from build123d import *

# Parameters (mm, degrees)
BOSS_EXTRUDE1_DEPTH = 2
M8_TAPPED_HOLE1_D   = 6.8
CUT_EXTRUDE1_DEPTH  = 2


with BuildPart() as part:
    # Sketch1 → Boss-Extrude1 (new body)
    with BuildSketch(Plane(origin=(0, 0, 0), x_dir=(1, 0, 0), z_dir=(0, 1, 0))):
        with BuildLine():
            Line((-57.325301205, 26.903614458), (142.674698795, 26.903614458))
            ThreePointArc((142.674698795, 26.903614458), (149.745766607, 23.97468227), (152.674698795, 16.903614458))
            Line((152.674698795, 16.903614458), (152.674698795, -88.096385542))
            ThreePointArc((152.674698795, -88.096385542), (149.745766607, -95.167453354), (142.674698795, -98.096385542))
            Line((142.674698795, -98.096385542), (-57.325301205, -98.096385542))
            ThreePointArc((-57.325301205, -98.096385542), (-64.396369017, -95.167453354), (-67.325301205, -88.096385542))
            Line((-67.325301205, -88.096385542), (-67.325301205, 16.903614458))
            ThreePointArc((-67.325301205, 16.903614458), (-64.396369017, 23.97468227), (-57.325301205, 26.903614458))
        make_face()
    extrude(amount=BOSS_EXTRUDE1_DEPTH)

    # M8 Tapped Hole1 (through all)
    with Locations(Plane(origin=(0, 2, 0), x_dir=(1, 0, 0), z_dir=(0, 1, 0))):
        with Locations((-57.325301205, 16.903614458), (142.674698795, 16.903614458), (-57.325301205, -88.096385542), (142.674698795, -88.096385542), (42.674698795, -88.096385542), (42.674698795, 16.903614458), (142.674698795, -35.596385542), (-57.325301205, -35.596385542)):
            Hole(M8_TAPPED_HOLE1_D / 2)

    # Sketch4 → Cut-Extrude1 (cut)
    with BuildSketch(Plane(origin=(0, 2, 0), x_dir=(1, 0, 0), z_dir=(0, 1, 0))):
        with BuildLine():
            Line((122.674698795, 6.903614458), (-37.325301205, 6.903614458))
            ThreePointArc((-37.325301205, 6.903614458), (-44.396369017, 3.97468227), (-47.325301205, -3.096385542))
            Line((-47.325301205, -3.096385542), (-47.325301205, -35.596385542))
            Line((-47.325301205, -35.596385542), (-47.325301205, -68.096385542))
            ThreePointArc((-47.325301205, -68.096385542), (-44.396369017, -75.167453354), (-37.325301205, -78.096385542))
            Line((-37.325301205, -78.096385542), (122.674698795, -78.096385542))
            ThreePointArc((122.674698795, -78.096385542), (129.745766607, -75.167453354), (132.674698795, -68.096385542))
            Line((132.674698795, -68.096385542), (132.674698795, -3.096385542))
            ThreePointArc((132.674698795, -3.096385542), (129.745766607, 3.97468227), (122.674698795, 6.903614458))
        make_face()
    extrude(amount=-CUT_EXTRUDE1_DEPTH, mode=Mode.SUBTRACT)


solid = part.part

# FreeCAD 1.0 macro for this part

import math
import FreeCAD as App
import Part
import Sketcher
from FreeCAD import Vector

doc = App.newDocument("Part")
body = doc.addObject("PartDesign::Body", "Body")

# Sketch on XZ plane
sketch1 = doc.addObject("Sketcher::SketchObject", "Sketch")
body.addObject(sketch1)
sketch1.AttachmentSupport = (doc.XZ_Plane, [""])
sketch1.MapMode = "FlatFace"
sketch1.addGeometry([
    Part.LineSegment(Vector(143, -27, 0), Vector(-57, -27, 0)),  # 0
    Part.ArcOfCircle(Part.Circle(Vector(-57, -17, 0), Vector(0, 0, 1), 10), math.radians(180), math.radians(270)),  # 1
    Part.LineSegment(Vector(-67, -17, 0), Vector(-67, 88, 0)),  # 2
    Part.ArcOfCircle(Part.Circle(Vector(-57, 88, 0), Vector(0, 0, 1), 10), math.radians(90), math.radians(180)),  # 3
    Part.LineSegment(Vector(-57, 98, 0), Vector(143, 98, 0)),  # 4
    Part.ArcOfCircle(Part.Circle(Vector(143, 88, 0), Vector(0, 0, 1), 10), math.radians(0), math.radians(90)),  # 5
    Part.LineSegment(Vector(153, 88, 0), Vector(153, -17, 0)),  # 6
    Part.ArcOfCircle(Part.Circle(Vector(143, -17, 0), Vector(0, 0, 1), 10), math.radians(-90), math.radians(0)),  # 7
], False)
sketch1.addConstraint([
    Sketcher.Constraint("Tangent", 0, 2, 1, 2),
    Sketcher.Constraint("Tangent", 1, 1, 2, 1),
    Sketcher.Constraint("Tangent", 2, 2, 3, 2),
    Sketcher.Constraint("Tangent", 3, 1, 4, 1),
    Sketcher.Constraint("Tangent", 4, 2, 5, 2),
    Sketcher.Constraint("Tangent", 5, 1, 6, 1),
    Sketcher.Constraint("Tangent", 6, 2, 7, 2),
    Sketcher.Constraint("Tangent", 7, 1, 0, 1),
    Sketcher.Constraint("Horizontal", 0),
    Sketcher.Constraint("Vertical", 2),
    Sketcher.Constraint("Horizontal", 4),
    Sketcher.Constraint("Vertical", 6),
    Sketcher.Constraint("Equal", 1, 3),
    Sketcher.Constraint("Equal", 3, 5),
    Sketcher.Constraint("Equal", 5, 7),
    Sketcher.Constraint("Radius", 1, 10.0),
    Sketcher.Constraint("DistanceX", 0, 2, 0, 1, 200.0),
    Sketcher.Constraint("DistanceY", 2, 1, 2, 2, 105.0),
    Sketcher.Constraint("DistanceX", 1, 3, -1, 1, 57.325301),
    Sketcher.Constraint("DistanceY", 1, 3, -1, 1, 16.903614),
])
pad1 = doc.addObject("PartDesign::Pad", "Pad")
body.addObject(pad1)
pad1.Profile = sketch1
pad1.Length = 2
pad1.Reversed = True

# Sketch on XZ plane
sketch2 = doc.addObject("Sketcher::SketchObject", "Sketch001")
body.addObject(sketch2)
sketch2.AttachmentSupport = (doc.XZ_Plane, [""])
sketch2.MapMode = "FlatFace"
sketch2.AttachmentOffset = App.Placement(Vector(0, 0, -2), App.Rotation())
sketch2.addGeometry([
    Part.Circle(Vector(-57.3, -16.9, 0), Vector(0, 0, 1), 3.4),  # 0
    Part.Circle(Vector(142.7, -16.9, 0), Vector(0, 0, 1), 3.4),  # 1
    Part.Circle(Vector(-57.3, 88.1, 0), Vector(0, 0, 1), 3.4),  # 2
    Part.Circle(Vector(142.7, 88.1, 0), Vector(0, 0, 1), 3.4),  # 3
    Part.Circle(Vector(42.7, 88.1, 0), Vector(0, 0, 1), 3.4),  # 4
    Part.Circle(Vector(42.7, -16.9, 0), Vector(0, 0, 1), 3.4),  # 5
    Part.Circle(Vector(142.7, 35.6, 0), Vector(0, 0, 1), 3.4),  # 6
    Part.Circle(Vector(-57.3, 35.6, 0), Vector(0, 0, 1), 3.4),  # 7
], False)
sketch2.addConstraint([
    Sketcher.Constraint("Equal", 0, 1),
    Sketcher.Constraint("Equal", 1, 2),
    Sketcher.Constraint("Equal", 2, 3),
    Sketcher.Constraint("Equal", 3, 4),
    Sketcher.Constraint("Equal", 4, 5),
    Sketcher.Constraint("Equal", 5, 6),
    Sketcher.Constraint("Equal", 6, 7),
    Sketcher.Constraint("Horizontal", 0, 3, 1, 3),
    Sketcher.Constraint("Horizontal", 2, 3, 3, 3),
    Sketcher.Constraint("Horizontal", 3, 3, 4, 3),
    Sketcher.Constraint("Horizontal", 1, 3, 5, 3),
    Sketcher.Constraint("Horizontal", 6, 3, 7, 3),
    Sketcher.Constraint("Vertical", 0, 3, 2, 3),
    Sketcher.Constraint("Vertical", 1, 3, 3, 3),
    Sketcher.Constraint("Vertical", 4, 3, 5, 3),
    Sketcher.Constraint("Vertical", 3, 3, 6, 3),
    Sketcher.Constraint("Vertical", 2, 3, 7, 3),
    Sketcher.Constraint("Diameter", 0, 6.8),
    Sketcher.Constraint("DistanceX", 0, 3, 1, 3, 200.0),
    Sketcher.Constraint("DistanceY", 0, 3, 2, 3, 105.0),
    Sketcher.Constraint("DistanceX", 2, 3, 4, 3, 100.0),
    Sketcher.Constraint("DistanceY", 6, 3, 3, 3, 52.5),
    Sketcher.Constraint("DistanceX", 0, 3, -1, 1, 57.325301),
    Sketcher.Constraint("DistanceY", 0, 3, -1, 1, 16.903614),
])
doc.recompute()
hole = doc.addObject("PartDesign::Hole", "Hole")
body.addObject(hole)
hole.Profile = sketch2
hole.ThreadType = "None"
hole.Diameter = 6.8
hole.DepthType = "ThroughAll"
hole.Reversed = True

# Sketch on XZ plane
sketch3 = doc.addObject("Sketcher::SketchObject", "Sketch002")
body.addObject(sketch3)
sketch3.AttachmentSupport = (doc.XZ_Plane, [""])
sketch3.MapMode = "FlatFace"
sketch3.AttachmentOffset = App.Placement(Vector(0, 0, -2), App.Rotation())
sketch3.addGeometry([
    Part.LineSegment(Vector(123, -7, 0), Vector(-37, -7, 0)),  # 0
    Part.ArcOfCircle(Part.Circle(Vector(-37, 3, 0), Vector(0, 0, 1), 10), math.radians(180), math.radians(270)),  # 1
    Part.LineSegment(Vector(-47, 3, 0), Vector(-47, 68, 0)),  # 2
    Part.ArcOfCircle(Part.Circle(Vector(-37, 68, 0), Vector(0, 0, 1), 10), math.radians(90), math.radians(180)),  # 3
    Part.LineSegment(Vector(-37, 78, 0), Vector(123, 78, 0)),  # 4
    Part.ArcOfCircle(Part.Circle(Vector(123, 68, 0), Vector(0, 0, 1), 10), math.radians(0), math.radians(90)),  # 5
    Part.LineSegment(Vector(133, 68, 0), Vector(133, 3, 0)),  # 6
    Part.ArcOfCircle(Part.Circle(Vector(123, 3, 0), Vector(0, 0, 1), 10), math.radians(-90), math.radians(0)),  # 7
], False)
sketch3.addConstraint([
    Sketcher.Constraint("Tangent", 0, 2, 1, 2),
    Sketcher.Constraint("Tangent", 1, 1, 2, 1),
    Sketcher.Constraint("Tangent", 2, 2, 3, 2),
    Sketcher.Constraint("Tangent", 3, 1, 4, 1),
    Sketcher.Constraint("Tangent", 4, 2, 5, 2),
    Sketcher.Constraint("Tangent", 5, 1, 6, 1),
    Sketcher.Constraint("Tangent", 6, 2, 7, 2),
    Sketcher.Constraint("Tangent", 7, 1, 0, 1),
    Sketcher.Constraint("Horizontal", 0),
    Sketcher.Constraint("Vertical", 2),
    Sketcher.Constraint("Horizontal", 4),
    Sketcher.Constraint("Vertical", 6),
    Sketcher.Constraint("Equal", 1, 3),
    Sketcher.Constraint("Equal", 3, 5),
    Sketcher.Constraint("Equal", 5, 7),
    Sketcher.Constraint("Radius", 1, 10.0),
    Sketcher.Constraint("DistanceX", 0, 2, 0, 1, 160.0),
    Sketcher.Constraint("DistanceY", 2, 1, 2, 2, 65.0),
    Sketcher.Constraint("DistanceX", 1, 3, -1, 1, 37.325301),
    Sketcher.Constraint("DistanceY", -1, 1, 1, 3, 3.096386),
])
pocket1 = doc.addObject("PartDesign::Pocket", "Pocket")
body.addObject(pocket1)
pocket1.Profile = sketch3
pocket1.Length = 2
pocket1.Reversed = True

doc.recompute()
